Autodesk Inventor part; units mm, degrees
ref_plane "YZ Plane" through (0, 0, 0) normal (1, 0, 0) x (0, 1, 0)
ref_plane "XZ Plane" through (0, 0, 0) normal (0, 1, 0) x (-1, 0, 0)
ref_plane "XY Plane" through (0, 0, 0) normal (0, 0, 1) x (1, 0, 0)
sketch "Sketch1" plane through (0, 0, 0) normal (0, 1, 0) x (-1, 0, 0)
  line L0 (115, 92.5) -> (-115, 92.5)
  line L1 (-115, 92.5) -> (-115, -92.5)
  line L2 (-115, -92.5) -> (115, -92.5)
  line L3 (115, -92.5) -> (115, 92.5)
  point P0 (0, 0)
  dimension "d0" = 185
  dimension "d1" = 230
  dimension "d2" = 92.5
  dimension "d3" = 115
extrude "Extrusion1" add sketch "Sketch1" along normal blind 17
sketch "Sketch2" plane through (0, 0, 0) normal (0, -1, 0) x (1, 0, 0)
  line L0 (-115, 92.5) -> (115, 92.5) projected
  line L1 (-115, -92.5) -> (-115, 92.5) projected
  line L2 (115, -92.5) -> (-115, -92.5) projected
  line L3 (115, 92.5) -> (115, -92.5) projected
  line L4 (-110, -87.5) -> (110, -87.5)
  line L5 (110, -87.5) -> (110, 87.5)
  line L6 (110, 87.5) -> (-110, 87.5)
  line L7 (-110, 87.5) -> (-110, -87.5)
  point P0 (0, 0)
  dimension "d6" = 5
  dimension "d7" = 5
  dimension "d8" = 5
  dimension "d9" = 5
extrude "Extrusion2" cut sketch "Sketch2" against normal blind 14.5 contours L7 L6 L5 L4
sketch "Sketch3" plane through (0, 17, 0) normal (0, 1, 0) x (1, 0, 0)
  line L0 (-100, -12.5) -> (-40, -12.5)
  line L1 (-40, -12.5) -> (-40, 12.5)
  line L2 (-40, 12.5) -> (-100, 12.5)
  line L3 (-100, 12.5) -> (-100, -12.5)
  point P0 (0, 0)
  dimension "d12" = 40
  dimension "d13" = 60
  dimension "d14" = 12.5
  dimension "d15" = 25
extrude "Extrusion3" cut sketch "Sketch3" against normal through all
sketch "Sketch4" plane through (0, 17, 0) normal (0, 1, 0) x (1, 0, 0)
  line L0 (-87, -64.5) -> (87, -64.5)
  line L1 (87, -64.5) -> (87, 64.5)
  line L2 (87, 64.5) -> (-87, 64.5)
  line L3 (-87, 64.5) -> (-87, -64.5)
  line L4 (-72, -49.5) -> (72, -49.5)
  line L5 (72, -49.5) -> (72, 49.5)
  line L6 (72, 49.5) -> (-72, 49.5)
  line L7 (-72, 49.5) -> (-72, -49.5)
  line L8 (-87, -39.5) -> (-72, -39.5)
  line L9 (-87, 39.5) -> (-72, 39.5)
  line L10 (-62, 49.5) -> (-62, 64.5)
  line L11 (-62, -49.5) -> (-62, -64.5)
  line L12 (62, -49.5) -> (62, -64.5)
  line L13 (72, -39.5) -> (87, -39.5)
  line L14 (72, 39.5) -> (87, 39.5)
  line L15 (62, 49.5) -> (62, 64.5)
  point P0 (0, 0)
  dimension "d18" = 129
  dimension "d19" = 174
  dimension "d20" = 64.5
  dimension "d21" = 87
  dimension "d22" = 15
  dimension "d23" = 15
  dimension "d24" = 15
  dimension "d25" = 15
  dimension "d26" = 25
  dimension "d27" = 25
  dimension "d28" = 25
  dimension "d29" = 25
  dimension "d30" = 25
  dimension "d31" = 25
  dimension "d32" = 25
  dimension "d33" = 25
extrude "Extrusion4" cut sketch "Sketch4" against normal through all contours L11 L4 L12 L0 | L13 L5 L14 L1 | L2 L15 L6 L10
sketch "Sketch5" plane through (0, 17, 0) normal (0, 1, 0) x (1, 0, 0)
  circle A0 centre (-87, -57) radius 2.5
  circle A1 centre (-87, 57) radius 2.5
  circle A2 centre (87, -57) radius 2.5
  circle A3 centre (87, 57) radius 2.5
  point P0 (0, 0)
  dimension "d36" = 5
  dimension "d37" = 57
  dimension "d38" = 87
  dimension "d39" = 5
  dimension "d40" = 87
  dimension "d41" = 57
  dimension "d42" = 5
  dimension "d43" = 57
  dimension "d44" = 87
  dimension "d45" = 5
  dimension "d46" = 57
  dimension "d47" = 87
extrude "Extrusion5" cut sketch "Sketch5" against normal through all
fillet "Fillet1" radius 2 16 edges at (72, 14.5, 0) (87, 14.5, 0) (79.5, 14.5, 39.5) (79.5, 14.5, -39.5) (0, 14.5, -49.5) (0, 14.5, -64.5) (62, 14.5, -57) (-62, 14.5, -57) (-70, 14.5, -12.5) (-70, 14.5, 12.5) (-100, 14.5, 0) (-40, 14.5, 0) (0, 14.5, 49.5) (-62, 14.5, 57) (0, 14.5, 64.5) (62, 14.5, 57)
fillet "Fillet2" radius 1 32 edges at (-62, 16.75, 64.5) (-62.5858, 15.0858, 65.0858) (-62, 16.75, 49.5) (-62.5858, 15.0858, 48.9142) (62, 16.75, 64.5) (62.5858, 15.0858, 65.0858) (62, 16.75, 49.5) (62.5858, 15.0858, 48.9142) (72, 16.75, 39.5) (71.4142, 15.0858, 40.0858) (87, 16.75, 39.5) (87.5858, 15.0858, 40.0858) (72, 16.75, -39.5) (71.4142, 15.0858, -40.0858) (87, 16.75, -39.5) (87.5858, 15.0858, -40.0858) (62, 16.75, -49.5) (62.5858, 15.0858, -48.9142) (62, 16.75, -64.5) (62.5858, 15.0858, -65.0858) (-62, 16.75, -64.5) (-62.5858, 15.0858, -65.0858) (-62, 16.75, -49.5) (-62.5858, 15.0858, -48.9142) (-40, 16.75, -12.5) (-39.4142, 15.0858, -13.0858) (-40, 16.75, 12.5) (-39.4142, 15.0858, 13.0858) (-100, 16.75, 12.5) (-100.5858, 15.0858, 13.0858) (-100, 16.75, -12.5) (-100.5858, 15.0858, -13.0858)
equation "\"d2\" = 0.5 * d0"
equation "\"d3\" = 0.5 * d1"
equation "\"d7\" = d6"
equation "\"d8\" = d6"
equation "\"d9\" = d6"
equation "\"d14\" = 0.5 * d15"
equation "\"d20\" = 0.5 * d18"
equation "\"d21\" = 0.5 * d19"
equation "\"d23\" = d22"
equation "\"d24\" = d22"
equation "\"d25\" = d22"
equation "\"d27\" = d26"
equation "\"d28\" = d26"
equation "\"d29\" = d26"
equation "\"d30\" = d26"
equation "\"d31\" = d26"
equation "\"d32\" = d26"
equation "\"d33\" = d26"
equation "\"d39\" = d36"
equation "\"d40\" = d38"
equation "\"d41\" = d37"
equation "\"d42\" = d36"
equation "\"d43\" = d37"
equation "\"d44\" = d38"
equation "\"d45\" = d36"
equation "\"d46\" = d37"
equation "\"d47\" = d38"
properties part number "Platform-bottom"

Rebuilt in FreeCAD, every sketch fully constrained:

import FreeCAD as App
import Part
import Sketcher
from FreeCAD import Vector


def edges_at(feature, points):
    """Names of the edges that pass closest to the given points."""
    edges = feature.Shape.Edges
    near = lambda p: min(range(len(edges)), key=lambda i: edges[i].distToShape(Part.Vertex(*p))[0])
    return sorted({f"Edge{near(p) + 1}" for p in points})

doc = App.newDocument("Part")
body = doc.addObject("PartDesign::Body", "Body")

# Sketch on XZ plane
sketch1 = body.newObject("Sketcher::SketchObject", "Sketch")
sketch1.AttachmentSupport = (doc.getObject("XZ_Plane"), [""])
sketch1.MapMode = "FlatFace"
sketch1.addGeometry([
    Part.LineSegment(Vector(-115, -92.5, 0), Vector(-115, 92.5, 0)),
    Part.LineSegment(Vector(-115, 92.5, 0), Vector(115, 92.5, 0)),
    Part.LineSegment(Vector(115, 92.5, 0), Vector(115, -92.5, 0)),
    Part.LineSegment(Vector(115, -92.5, 0), Vector(-115, -92.5, 0)),
], False)
sketch1.addConstraint([
    Sketcher.Constraint("Coincident", 0, 2, 1, 1),
    Sketcher.Constraint("Coincident", 1, 2, 2, 1),
    Sketcher.Constraint("Coincident", 2, 2, 3, 1),
    Sketcher.Constraint("Coincident", 3, 2, 0, 1),
    Sketcher.Constraint("Vertical", 0),
    Sketcher.Constraint("Horizontal", 1),
    Sketcher.Constraint("Vertical", 2),
    Sketcher.Constraint("Horizontal", 3),
    Sketcher.Constraint("Symmetric", 0, 2, 2, 2, -1, 1),
    Sketcher.Constraint("DistanceX", 1, 1, 1, 2, 230.0),
    Sketcher.Constraint("DistanceY", 0, 1, 0, 2, 185.0),
])
pad1 = body.newObject("PartDesign::Pad", "Pad")
pad1.Profile = sketch1
pad1.Length = 17
pad1.Reversed = True

# Sketch on XZ plane
sketch2 = body.newObject("Sketcher::SketchObject", "Sketch001")
sketch2.AttachmentSupport = (doc.getObject("XZ_Plane"), [""])
sketch2.MapMode = "FlatFace"
sketch2.addGeometry([
    Part.LineSegment(Vector(-110, 87.5, 0), Vector(-110, -87.5, 0)),
    Part.LineSegment(Vector(-110, -87.5, 0), Vector(110, -87.5, 0)),
    Part.LineSegment(Vector(110, -87.5, 0), Vector(110, 87.5, 0)),
    Part.LineSegment(Vector(110, 87.5, 0), Vector(-110, 87.5, 0)),
], False)
sketch2.addConstraint([
    Sketcher.Constraint("Coincident", 0, 2, 1, 1),
    Sketcher.Constraint("Coincident", 1, 2, 2, 1),
    Sketcher.Constraint("Coincident", 2, 2, 3, 1),
    Sketcher.Constraint("Coincident", 3, 2, 0, 1),
    Sketcher.Constraint("Vertical", 0),
    Sketcher.Constraint("Horizontal", 1),
    Sketcher.Constraint("Vertical", 2),
    Sketcher.Constraint("Horizontal", 3),
    Sketcher.Constraint("Symmetric", 0, 2, 2, 2, -1, 1),
    Sketcher.Constraint("DistanceX", 1, 1, 1, 2, 220.0),
    Sketcher.Constraint("DistanceY", 0, 2, 0, 1, 175.0),
])
pocket1 = body.newObject("PartDesign::Pocket", "Pocket")
pocket1.Profile = sketch2
pocket1.Length = 14.5

# Sketch on XZ plane
sketch3 = body.newObject("Sketcher::SketchObject", "Sketch002")
sketch3.AttachmentSupport = (doc.getObject("XZ_Plane"), [""])
sketch3.MapMode = "FlatFace"
sketch3.AttachmentOffset = App.Placement(Vector(0, 0, -17), App.Rotation())
sketch3.addGeometry([
    Part.LineSegment(Vector(-100, -12.5, 0), Vector(-100, 12.5, 0)),
    Part.LineSegment(Vector(-100, 12.5, 0), Vector(-40, 12.5, 0)),
    Part.LineSegment(Vector(-40, 12.5, 0), Vector(-40, -12.5, 0)),
    Part.LineSegment(Vector(-40, -12.5, 0), Vector(-100, -12.5, 0)),
], False)
sketch3.addConstraint([
    Sketcher.Constraint("Coincident", 0, 2, 1, 1),
    Sketcher.Constraint("Coincident", 1, 2, 2, 1),
    Sketcher.Constraint("Coincident", 2, 2, 3, 1),
    Sketcher.Constraint("Coincident", 3, 2, 0, 1),
    Sketcher.Constraint("Vertical", 0),
    Sketcher.Constraint("Horizontal", 1),
    Sketcher.Constraint("Vertical", 2),
    Sketcher.Constraint("Horizontal", 3),
    Sketcher.Constraint("DistanceX", 1, 1, 1, 2, 60.0),
    Sketcher.Constraint("DistanceY", 0, 1, 0, 2, 25.0),
    Sketcher.Constraint("DistanceX", 1, 2, -1, 1, 40.0),
    Sketcher.Constraint("DistanceY", -1, 1, 0, 2, 12.5),
])
pocket2 = body.newObject("PartDesign::Pocket", "Pocket001")
pocket2.Profile = sketch3
pocket2.Type = "ThroughAll"
pocket2.Reversed = True

# Sketch on XZ plane
sketch4 = body.newObject("Sketcher::SketchObject", "Sketch003")
sketch4.AttachmentSupport = (doc.getObject("XZ_Plane"), [""])
sketch4.MapMode = "FlatFace"
sketch4.AttachmentOffset = App.Placement(Vector(0, 0, -17), App.Rotation())
sketch4.addGeometry([
    Part.LineSegment(Vector(-62, 49.5, 0), Vector(-62, 64.5, 0)),  # 0
    Part.LineSegment(Vector(-62, 64.5, 0), Vector(62, 64.5, 0)),  # 1
    Part.LineSegment(Vector(62, 64.5, 0), Vector(62, 49.5, 0)),  # 2
    Part.LineSegment(Vector(62, 49.5, 0), Vector(-62, 49.5, 0)),  # 3
    Part.LineSegment(Vector(72, 39.5, 0), Vector(87, 39.5, 0)),  # 4
    Part.LineSegment(Vector(87, 39.5, 0), Vector(87, -39.5, 0)),  # 5
    Part.LineSegment(Vector(87, -39.5, 0), Vector(72, -39.5, 0)),  # 6
    Part.LineSegment(Vector(72, -39.5, 0), Vector(72, 39.5, 0)),  # 7
    Part.LineSegment(Vector(62, -64.5, 0), Vector(-62, -64.5, 0)),  # 8
    Part.LineSegment(Vector(-62, -64.5, 0), Vector(-62, -49.5, 0)),  # 9
    Part.LineSegment(Vector(-62, -49.5, 0), Vector(62, -49.5, 0)),  # 10
    Part.LineSegment(Vector(62, -49.5, 0), Vector(62, -64.5, 0)),  # 11
], False)
sketch4.addConstraint([
    Sketcher.Constraint("Coincident", 0, 2, 1, 1),
    Sketcher.Constraint("Coincident", 1, 2, 2, 1),
    Sketcher.Constraint("Coincident", 2, 2, 3, 1),
    Sketcher.Constraint("Coincident", 3, 2, 0, 1),
    Sketcher.Constraint("Coincident", 4, 2, 5, 1),
    Sketcher.Constraint("Coincident", 5, 2, 6, 1),
    Sketcher.Constraint("Coincident", 6, 2, 7, 1),
    Sketcher.Constraint("Coincident", 7, 2, 4, 1),
    Sketcher.Constraint("Coincident", 8, 2, 9, 1),
    Sketcher.Constraint("Coincident", 9, 2, 10, 1),
    Sketcher.Constraint("Coincident", 10, 2, 11, 1),
    Sketcher.Constraint("Coincident", 11, 2, 8, 1),
    Sketcher.Constraint("Vertical", 0),
    Sketcher.Constraint("Horizontal", 1),
    Sketcher.Constraint("Vertical", 2),
    Sketcher.Constraint("Horizontal", 3),
    Sketcher.Constraint("Horizontal", 4),
    Sketcher.Constraint("Vertical", 5),
    Sketcher.Constraint("Horizontal", 6),
    Sketcher.Constraint("Vertical", 7),
    Sketcher.Constraint("Horizontal", 8),
    Sketcher.Constraint("Vertical", 9),
    Sketcher.Constraint("Horizontal", 10),
    Sketcher.Constraint("Vertical", 11),
    Sketcher.Constraint("Symmetric", 1, 2, 8, 2, -1, 1),
    Sketcher.Constraint("Symmetric", 3, 2, 10, 2, -1, 1),
    Sketcher.Constraint("Vertical", 3, 2, 8, 2),
    Sketcher.Constraint("Equal", 6, 0),
    Sketcher.Constraint("DistanceX", 4, 1, 4, 2, 15.0),
    Sketcher.Constraint("DistanceX", -1, 1, 4, 2, 87.0),
    Sketcher.Constraint("DistanceX", 2, 2, 4, 2, 25.0),
    Sketcher.Constraint("DistanceY", 4, 2, 1, 2, 25.0),
    Sketcher.Constraint("DistanceY", 8, 2, 0, 2, 129.0),
    Sketcher.Constraint("DistanceY", 8, 2, 6, 2, 25.0),
])
pocket3 = body.newObject("PartDesign::Pocket", "Pocket002")
pocket3.Profile = sketch4
pocket3.Type = "ThroughAll"
pocket3.Reversed = True

# Sketch on XZ plane
sketch5 = body.newObject("Sketcher::SketchObject", "Sketch004")
sketch5.AttachmentSupport = (doc.getObject("XZ_Plane"), [""])
sketch5.MapMode = "FlatFace"
sketch5.AttachmentOffset = App.Placement(Vector(0, 0, -17), App.Rotation())
sketch5.addGeometry([
    Part.Circle(Vector(-87, 57, 0), Vector(0, 0, 1), 2.5),
    Part.Circle(Vector(-87, -57, 0), Vector(0, 0, 1), 2.5),
    Part.Circle(Vector(87, 57, 0), Vector(0, 0, 1), 2.5),
    Part.Circle(Vector(87, -57, 0), Vector(0, 0, 1), 2.5),
], False)
sketch5.addConstraint([
    Sketcher.Constraint("Equal", 0, 1),
    Sketcher.Constraint("Equal", 1, 2),
    Sketcher.Constraint("Equal", 2, 3),
    Sketcher.Constraint("Symmetric", 1, 3, 2, 3, -1, 1),
    Sketcher.Constraint("Symmetric", 0, 3, 3, 3, -1, 1),
    Sketcher.Constraint("Symmetric", 0, 3, 2, 3, -2),
    Sketcher.Constraint("Diameter", 0, 5.0),
    Sketcher.Constraint("DistanceX", 0, 3, -1, 1, 87.0),
    Sketcher.Constraint("DistanceY", -1, 1, 0, 3, 57.0),
])
pocket4 = body.newObject("PartDesign::Pocket", "Pocket003")
pocket4.Profile = sketch5
pocket4.Type = "ThroughAll"
pocket4.Reversed = True
doc.recompute()

fillet = body.newObject("PartDesign::Fillet", "Fillet")
fillet.Base = (pocket4, edges_at(pocket4, [
    (72, 14.5, 0),
    (87, 14.5, 0),
    (79.5, 14.5, 39.5),
    (79.5, 14.5, -39.5),
    (0, 14.5, -49.5),
    (0, 14.5, -64.5),
    (62, 14.5, -57),
    (-62, 14.5, -57),
    (-70, 14.5, -12.5),
    (-70, 14.5, 12.5),
    (-100, 14.5, 0),
    (-40, 14.5, 0),
    (0, 14.5, 49.5),
    (-62, 14.5, 57),
    (0, 14.5, 64.5),
    (62, 14.5, 57),
]))
fillet.Radius = 2
doc.recompute()

fillet2 = body.newObject("PartDesign::Fillet", "Fillet001")
fillet2.Base = (fillet, edges_at(fillet, [
    (-62, 16.75, 64.5),
    (-62.586, 15.086, 65.086),
    (-62, 16.75, 49.5),
    (-62.586, 15.086, 48.914),
    (62, 16.75, 64.5),
    (62.586, 15.086, 65.086),
    (62, 16.75, 49.5),
    (62.586, 15.086, 48.914),
    (72, 16.75, 39.5),
    (71.414, 15.086, 40.086),
    (87, 16.75, 39.5),
    (87.586, 15.086, 40.086),
    (72, 16.75, -39.5),
    (71.414, 15.086, -40.086),
    (87, 16.75, -39.5),
    (87.586, 15.086, -40.086),
    (62, 16.75, -49.5),
    (62.586, 15.086, -48.914),
    (62, 16.75, -64.5),
    (62.586, 15.086, -65.086),
    (-62, 16.75, -64.5),
    (-62.586, 15.086, -65.086),
    (-62, 16.75, -49.5),
    (-62.586, 15.086, -48.914),
    (-40, 16.75, -12.5),
    (-39.414, 15.086, -13.086),
    (-40, 16.75, 12.5),
    (-39.414, 15.086, 13.086),
    (-100, 16.75, 12.5),
    (-100.586, 15.086, 13.086),
    (-100, 16.75, -12.5),
    (-100.586, 15.086, -13.086),
]))
fillet2.Radius = 1

doc.recompute()
